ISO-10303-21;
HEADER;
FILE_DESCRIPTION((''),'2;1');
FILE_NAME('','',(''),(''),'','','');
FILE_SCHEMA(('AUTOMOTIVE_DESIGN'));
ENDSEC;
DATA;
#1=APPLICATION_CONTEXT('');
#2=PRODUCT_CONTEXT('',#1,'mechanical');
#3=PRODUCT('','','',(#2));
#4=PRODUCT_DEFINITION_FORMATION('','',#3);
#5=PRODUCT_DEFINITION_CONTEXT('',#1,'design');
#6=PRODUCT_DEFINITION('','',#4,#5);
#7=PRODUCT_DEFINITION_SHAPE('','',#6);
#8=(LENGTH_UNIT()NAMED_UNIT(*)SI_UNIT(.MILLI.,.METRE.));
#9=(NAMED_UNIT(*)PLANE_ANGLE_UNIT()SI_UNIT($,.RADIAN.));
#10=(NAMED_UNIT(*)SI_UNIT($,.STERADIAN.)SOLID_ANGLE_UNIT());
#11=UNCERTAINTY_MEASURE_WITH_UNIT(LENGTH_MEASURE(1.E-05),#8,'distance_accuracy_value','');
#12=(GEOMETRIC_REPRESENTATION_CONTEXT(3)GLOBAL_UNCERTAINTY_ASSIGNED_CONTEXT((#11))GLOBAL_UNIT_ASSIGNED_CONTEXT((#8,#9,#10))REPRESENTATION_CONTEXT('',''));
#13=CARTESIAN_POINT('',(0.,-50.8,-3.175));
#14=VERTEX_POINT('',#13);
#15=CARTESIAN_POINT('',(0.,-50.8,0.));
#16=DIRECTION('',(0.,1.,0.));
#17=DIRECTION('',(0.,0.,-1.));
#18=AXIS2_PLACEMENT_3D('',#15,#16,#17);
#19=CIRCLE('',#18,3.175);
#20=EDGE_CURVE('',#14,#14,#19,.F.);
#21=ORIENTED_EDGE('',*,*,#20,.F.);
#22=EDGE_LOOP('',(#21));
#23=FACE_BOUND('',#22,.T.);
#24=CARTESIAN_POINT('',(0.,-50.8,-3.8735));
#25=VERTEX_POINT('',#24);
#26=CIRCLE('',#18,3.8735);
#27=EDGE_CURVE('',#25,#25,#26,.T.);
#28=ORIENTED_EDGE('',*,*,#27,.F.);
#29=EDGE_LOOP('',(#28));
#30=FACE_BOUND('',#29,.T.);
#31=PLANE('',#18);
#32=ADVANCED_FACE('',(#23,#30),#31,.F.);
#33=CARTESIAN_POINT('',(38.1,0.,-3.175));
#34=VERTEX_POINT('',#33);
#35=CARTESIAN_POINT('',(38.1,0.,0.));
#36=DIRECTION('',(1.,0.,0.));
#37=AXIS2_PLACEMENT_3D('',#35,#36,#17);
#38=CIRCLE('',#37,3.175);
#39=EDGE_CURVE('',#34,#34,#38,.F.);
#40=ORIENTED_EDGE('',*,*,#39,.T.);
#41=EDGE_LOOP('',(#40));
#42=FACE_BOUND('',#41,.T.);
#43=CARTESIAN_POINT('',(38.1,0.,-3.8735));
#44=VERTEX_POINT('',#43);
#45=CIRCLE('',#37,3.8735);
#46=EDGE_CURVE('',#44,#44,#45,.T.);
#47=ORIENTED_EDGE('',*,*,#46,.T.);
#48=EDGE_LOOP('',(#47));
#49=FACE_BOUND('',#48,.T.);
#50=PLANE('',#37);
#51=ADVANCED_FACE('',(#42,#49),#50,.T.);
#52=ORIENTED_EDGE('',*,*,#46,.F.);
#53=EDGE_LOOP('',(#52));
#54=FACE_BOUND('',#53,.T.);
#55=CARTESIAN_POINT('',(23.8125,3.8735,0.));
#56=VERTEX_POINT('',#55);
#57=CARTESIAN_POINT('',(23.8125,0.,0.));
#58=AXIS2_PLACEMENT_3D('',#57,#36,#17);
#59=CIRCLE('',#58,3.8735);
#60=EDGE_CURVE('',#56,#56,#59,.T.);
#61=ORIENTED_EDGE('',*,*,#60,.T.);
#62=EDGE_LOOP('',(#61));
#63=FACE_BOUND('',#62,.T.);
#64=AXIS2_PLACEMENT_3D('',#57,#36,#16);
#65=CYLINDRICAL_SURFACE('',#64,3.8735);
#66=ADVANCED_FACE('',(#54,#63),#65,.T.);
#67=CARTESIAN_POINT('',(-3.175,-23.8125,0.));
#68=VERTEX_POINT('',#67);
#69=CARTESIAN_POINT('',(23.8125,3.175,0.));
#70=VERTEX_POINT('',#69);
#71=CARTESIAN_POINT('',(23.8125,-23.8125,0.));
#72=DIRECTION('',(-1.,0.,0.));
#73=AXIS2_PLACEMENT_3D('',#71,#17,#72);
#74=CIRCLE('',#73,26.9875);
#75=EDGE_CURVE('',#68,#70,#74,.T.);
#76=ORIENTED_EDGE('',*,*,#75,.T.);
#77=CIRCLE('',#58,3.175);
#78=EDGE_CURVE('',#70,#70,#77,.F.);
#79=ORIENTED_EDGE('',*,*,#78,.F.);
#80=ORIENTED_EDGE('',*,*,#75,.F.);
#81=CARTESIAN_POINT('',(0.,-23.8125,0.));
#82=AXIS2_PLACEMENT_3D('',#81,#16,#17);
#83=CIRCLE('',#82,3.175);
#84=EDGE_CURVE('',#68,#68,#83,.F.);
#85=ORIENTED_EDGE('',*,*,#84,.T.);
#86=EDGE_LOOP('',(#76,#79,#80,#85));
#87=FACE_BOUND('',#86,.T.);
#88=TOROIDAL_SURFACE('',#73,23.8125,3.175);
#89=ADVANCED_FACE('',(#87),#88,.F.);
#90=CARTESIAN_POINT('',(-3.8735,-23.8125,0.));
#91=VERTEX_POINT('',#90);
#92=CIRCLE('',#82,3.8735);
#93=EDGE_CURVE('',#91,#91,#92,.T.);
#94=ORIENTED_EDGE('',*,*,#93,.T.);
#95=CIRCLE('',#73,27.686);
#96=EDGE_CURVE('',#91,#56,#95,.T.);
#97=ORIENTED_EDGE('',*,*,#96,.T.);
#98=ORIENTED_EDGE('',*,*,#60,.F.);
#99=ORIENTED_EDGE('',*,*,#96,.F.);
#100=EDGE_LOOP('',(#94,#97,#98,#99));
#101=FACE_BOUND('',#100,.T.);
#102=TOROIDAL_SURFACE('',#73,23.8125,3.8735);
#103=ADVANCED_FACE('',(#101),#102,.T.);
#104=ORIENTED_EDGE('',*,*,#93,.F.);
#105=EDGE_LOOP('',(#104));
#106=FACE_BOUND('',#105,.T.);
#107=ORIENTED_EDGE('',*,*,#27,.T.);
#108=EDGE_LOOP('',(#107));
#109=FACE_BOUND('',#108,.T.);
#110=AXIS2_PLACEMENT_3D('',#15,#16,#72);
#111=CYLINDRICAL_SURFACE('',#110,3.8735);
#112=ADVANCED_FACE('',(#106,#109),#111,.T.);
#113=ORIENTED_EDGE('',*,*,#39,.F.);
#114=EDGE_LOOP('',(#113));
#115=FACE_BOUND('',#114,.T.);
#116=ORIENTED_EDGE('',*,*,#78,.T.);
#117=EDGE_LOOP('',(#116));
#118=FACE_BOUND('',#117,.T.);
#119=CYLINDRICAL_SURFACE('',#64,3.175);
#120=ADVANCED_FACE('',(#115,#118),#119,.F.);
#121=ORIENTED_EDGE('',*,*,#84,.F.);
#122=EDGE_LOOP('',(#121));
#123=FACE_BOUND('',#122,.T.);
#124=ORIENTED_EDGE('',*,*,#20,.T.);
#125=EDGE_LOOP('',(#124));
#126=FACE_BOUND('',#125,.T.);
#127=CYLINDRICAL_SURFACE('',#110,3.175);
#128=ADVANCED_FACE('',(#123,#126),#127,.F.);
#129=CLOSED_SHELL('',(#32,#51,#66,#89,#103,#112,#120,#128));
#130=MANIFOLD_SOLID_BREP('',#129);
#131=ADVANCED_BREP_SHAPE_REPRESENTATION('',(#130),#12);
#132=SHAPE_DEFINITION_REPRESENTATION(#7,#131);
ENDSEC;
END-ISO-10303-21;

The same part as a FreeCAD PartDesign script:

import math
import FreeCAD as App
import Part
import Sketcher
from FreeCAD import Vector
Q = App.Units.Quantity

doc = App.newDocument("Part")
params = doc.addObject("Spreadsheet::Sheet", "Params")
for row, (alias, value) in enumerate([
    ("sketch1_diameter", "0.25 in"),
    ("sketch1_diameter2", "0.305 in"),
    ("sketch2_radius", "0.9375 in"),
], start=1):
    params.set(f"A{row}", alias)
    params.set(f"B{row}", "=" + value)
    params.setAlias(f"B{row}", alias)

body = doc.addObject("PartDesign::Body", "Body")

# Sketch on YZ plane
sketch1 = body.newObject("Sketcher::SketchObject", "Sketch")
sketch1.AttachmentSupport = (doc.getObject("YZ_Plane"), [""])
sketch1.MapMode = "FlatFace"
sketch1.AttachmentOffset = App.Placement(Vector(0, 0, 1.5 * 25.4), App.Rotation())
sketch1.addGeometry(Part.Circle(Vector(0, 0, 0), Vector(0, 0, 1), 3.9), False)
sketch1.addGeometry(Part.Circle(Vector(0, 0, 0), Vector(0, 0, 1), 3.2), False)
sketch1.addConstraint(Sketcher.Constraint("Coincident", 0, 3, -1, 1))
sketch1.addConstraint(Sketcher.Constraint("Coincident", 1, 3, -1, 1))
sketch1.addConstraint(Sketcher.Constraint("Diameter", 1, Q("0.25 in")))
sketch1.addConstraint(Sketcher.Constraint("Diameter", 0, Q("0.305 in")))
sketch1.setExpression("Constraints[2]", "Params.sketch1_diameter")
sketch1.setExpression("Constraints[3]", "Params.sketch1_diameter2")

# Sketch on XY plane
sketch2 = body.newObject("Sketcher::SketchObject", "Sketch001")
sketch2.AttachmentSupport = (doc.getObject("XY_Plane"), [""])
sketch2.MapMode = "FlatFace"
sketch2.addGeometry(Part.LineSegment(Vector(0, -51, 0), Vector(0, -24, 0)), False)
sketch2.addGeometry(Part.ArcOfCircle(Part.Circle(Vector(24, -24, 0), Vector(0, 0, 1), 24), math.radians(90), math.radians(180)), False)
sketch2.addGeometry(Part.LineSegment(Vector(24, 0, 0), Vector(38, 0, 0)), False)
sketch2.addConstraint(Sketcher.Constraint("Tangent", 0, 2, 1, 2))
sketch2.addConstraint(Sketcher.Constraint("Tangent", 1, 1, 2, 1))
sketch2.addConstraint(Sketcher.Constraint("Vertical", 0))
sketch2.addConstraint(Sketcher.Constraint("Horizontal", 2))
sketch2.addConstraint(Sketcher.Constraint("PointOnObject", 0, 1, -2))
sketch2.addConstraint(Sketcher.Constraint("PointOnObject", 1, 1, -1))
sketch2.addConstraint(Sketcher.Constraint("DistanceY", 0, 1, -1, 1, Q("2 in")))
sketch2.addConstraint(Sketcher.Constraint("Radius", 1, Q("0.9375 in")))
sketch2.addConstraint(Sketcher.Constraint("DistanceX", -1, 1, 2, 2, Q("1.5 in")))
sketch2.setExpression("Constraints[7]", "Params.sketch2_radius")
doc.recompute()

additivepipe = body.newObject("PartDesign::AdditivePipe", "AdditivePipe")
additivepipe.Profile = sketch1
additivepipe.Spine = (sketch2, ["Edge1", "Edge2", "Edge3"])

doc.recompute()
